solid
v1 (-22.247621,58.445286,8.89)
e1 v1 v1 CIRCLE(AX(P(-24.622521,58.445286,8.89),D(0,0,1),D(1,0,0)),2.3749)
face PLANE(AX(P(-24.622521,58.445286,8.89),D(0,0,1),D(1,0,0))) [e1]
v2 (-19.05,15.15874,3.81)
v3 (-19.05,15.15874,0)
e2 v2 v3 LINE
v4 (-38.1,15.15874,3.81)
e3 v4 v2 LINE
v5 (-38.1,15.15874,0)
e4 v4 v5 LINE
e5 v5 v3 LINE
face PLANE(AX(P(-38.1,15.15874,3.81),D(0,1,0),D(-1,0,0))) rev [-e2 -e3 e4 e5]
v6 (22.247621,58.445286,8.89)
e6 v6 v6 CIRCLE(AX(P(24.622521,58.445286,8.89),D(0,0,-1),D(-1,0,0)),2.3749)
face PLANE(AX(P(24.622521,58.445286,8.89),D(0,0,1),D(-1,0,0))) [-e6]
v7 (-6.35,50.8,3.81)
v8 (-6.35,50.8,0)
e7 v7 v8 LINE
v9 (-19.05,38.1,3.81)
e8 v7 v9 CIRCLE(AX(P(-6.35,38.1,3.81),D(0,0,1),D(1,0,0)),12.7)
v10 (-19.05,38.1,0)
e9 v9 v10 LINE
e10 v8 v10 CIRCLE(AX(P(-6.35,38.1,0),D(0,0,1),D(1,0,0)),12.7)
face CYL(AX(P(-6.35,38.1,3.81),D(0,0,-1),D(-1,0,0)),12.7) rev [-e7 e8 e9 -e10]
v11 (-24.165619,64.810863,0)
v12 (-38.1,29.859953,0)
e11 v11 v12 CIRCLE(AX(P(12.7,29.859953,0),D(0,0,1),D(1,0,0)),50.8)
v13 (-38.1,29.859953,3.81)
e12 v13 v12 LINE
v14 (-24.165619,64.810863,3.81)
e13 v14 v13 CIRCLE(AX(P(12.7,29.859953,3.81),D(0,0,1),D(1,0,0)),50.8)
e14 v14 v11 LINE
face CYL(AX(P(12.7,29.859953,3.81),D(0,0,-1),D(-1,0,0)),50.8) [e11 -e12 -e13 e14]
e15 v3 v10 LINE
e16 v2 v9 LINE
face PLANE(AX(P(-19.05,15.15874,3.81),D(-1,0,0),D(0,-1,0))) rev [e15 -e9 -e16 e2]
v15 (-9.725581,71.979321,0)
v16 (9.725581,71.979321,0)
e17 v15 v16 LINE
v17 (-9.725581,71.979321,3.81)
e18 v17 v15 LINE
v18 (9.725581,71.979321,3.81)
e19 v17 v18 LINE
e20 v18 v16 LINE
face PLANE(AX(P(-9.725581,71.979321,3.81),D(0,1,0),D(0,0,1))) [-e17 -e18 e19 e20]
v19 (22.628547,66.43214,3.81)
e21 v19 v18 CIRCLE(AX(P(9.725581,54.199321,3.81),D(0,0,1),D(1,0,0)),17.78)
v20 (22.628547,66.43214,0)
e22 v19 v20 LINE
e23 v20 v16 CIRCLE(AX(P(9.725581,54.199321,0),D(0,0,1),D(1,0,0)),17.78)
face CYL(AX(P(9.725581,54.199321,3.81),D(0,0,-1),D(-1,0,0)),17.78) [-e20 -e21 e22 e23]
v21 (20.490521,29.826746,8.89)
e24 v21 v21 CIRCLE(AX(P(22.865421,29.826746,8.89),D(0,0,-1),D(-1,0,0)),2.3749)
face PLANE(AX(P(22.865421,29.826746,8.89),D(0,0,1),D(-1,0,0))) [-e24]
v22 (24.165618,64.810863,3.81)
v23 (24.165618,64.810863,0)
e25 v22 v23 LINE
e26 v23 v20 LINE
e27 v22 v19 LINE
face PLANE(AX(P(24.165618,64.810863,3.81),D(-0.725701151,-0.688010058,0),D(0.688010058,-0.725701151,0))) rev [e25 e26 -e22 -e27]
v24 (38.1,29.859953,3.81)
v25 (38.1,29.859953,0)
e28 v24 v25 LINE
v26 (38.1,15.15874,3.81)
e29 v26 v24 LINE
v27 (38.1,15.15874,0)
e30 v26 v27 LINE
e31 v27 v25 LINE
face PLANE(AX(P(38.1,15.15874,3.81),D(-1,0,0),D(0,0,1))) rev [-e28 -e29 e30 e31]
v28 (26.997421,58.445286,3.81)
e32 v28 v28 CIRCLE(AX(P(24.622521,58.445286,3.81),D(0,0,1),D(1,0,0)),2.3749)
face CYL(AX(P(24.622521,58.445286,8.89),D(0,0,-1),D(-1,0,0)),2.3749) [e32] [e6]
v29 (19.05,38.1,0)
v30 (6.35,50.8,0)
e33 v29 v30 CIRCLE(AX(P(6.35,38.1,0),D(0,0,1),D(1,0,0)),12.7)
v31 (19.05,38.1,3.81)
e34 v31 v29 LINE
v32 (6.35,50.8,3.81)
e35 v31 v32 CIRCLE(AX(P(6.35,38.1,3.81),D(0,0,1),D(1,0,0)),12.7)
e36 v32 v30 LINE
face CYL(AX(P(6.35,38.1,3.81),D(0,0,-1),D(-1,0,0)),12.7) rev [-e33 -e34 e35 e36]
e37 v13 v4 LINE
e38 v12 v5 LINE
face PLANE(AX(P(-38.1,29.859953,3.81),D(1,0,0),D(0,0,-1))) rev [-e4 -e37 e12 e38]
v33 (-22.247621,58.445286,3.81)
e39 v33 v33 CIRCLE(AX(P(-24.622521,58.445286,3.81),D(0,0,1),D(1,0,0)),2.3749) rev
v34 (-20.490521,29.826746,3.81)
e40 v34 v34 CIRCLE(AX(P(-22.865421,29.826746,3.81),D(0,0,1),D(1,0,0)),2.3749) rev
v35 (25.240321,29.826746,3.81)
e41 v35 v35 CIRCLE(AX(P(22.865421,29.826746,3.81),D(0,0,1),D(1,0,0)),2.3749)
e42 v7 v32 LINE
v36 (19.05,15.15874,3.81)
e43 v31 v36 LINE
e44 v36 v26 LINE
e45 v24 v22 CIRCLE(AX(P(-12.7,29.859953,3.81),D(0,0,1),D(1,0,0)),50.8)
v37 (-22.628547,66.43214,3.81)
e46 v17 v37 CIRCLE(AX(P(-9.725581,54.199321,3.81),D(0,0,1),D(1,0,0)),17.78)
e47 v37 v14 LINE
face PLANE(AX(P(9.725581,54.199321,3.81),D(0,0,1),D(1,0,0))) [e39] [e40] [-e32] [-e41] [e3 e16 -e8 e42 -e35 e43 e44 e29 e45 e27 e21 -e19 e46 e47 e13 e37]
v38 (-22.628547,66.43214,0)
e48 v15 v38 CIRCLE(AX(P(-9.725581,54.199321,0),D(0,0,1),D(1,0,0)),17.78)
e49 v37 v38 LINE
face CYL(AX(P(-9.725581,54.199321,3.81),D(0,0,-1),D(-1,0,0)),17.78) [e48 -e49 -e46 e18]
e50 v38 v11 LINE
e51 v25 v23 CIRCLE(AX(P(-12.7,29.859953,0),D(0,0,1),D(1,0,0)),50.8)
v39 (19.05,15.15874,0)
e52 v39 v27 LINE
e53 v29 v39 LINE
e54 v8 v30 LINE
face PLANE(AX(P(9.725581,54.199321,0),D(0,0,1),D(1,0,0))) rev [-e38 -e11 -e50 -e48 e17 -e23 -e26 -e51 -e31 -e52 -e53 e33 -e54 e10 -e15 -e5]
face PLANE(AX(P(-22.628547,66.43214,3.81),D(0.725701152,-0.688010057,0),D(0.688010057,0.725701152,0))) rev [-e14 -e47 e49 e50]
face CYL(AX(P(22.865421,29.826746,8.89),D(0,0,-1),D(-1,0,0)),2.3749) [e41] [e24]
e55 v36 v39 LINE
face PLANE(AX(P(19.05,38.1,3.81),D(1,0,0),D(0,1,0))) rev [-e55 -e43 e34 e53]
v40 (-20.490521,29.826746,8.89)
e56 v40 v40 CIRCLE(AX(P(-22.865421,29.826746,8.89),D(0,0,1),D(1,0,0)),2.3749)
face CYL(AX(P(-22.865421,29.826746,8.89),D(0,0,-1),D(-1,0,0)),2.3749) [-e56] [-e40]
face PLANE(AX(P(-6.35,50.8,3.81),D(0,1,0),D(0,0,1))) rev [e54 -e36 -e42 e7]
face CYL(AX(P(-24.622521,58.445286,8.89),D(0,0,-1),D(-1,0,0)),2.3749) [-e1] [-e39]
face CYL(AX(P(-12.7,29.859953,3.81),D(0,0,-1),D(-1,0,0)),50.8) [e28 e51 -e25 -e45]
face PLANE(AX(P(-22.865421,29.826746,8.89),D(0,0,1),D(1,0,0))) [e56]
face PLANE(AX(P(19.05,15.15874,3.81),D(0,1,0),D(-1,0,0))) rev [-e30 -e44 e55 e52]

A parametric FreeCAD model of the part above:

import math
import FreeCAD as App
import Part
import Sketcher
from FreeCAD import Vector
Q = App.Units.Quantity

doc = App.newDocument("Part")
body = doc.addObject("PartDesign::Body", "Body")

# Sketch on XY plane
sketch1 = body.newObject("Sketcher::SketchObject", "Sketch")
sketch1.AttachmentSupport = (doc.getObject("XY_Plane"), [""])
sketch1.MapMode = "FlatFace"
sketch1.addGeometry([
    Part.LineSegment(Vector(-22.628547, 66.43214, 0), Vector(-24.165619, 64.810863, 0)),  # 0
    Part.ArcOfCircle(Part.Circle(Vector(12.7, 29.859953, 0), Vector(0, 0, 1), 50.8), math.radians(136.527207), math.radians(180)),  # 1
    Part.LineSegment(Vector(-38.1, 29.859953, 0), Vector(-38.1, 15.15874, 0)),  # 2
    Part.LineSegment(Vector(-38.1, 15.15874, 0), Vector(-19.05, 15.15874, 0)),  # 3
    Part.LineSegment(Vector(-19.05, 15.15874, 0), Vector(-19.05, 38.1, 0)),  # 4
    Part.ArcOfCircle(Part.Circle(Vector(-6.35, 38.1, 0), Vector(0, 0, 1), 12.7), math.radians(90), math.radians(180)),  # 5
    Part.LineSegment(Vector(-6.35, 50.8, 0), Vector(6.35, 50.8, 0)),  # 6
    Part.ArcOfCircle(Part.Circle(Vector(6.35, 38.1, 0), Vector(0, 0, 1), 12.7), math.radians(0), math.radians(90)),  # 7
    Part.LineSegment(Vector(19.05, 38.1, 0), Vector(19.05, 15.15874, 0)),  # 8
    Part.LineSegment(Vector(19.05, 15.15874, 0), Vector(38.1, 15.15874, 0)),  # 9
    Part.LineSegment(Vector(38.1, 15.15874, 0), Vector(38.1, 29.859953, 0)),  # 10
    Part.ArcOfCircle(Part.Circle(Vector(-12.7, 29.859953, 0), Vector(0, 0, 1), 50.8), math.radians(0), math.radians(43.472793)),  # 11
    Part.LineSegment(Vector(24.165618, 64.810863, 0), Vector(22.628547, 66.43214, 0)),  # 12
    Part.ArcOfCircle(Part.Circle(Vector(9.725581, 54.199321, 0), Vector(0, 0, 1), 17.78), math.radians(43.472793), math.radians(90)),  # 13
    Part.LineSegment(Vector(9.725581, 71.979321, 0), Vector(-9.725581, 71.979321, 0)),  # 14
    Part.ArcOfCircle(Part.Circle(Vector(-9.725581, 54.199321, 0), Vector(0, 0, 1), 17.78), math.radians(90), math.radians(136.527207)),  # 15
], False)
sketch1.addConstraint([
    Sketcher.Constraint("Tangent", 0, 2, 1, 1),
    Sketcher.Constraint("Tangent", 1, 2, 2, 1),
    Sketcher.Constraint("Coincident", 2, 2, 3, 1),
    Sketcher.Constraint("Coincident", 3, 2, 4, 1),
    Sketcher.Constraint("Tangent", 4, 2, 5, 2),
    Sketcher.Constraint("Tangent", 5, 1, 6, 1),
    Sketcher.Constraint("Tangent", 6, 2, 7, 2),
    Sketcher.Constraint("Tangent", 7, 1, 8, 1),
    Sketcher.Constraint("Coincident", 8, 2, 9, 1),
    Sketcher.Constraint("Coincident", 9, 2, 10, 1),
    Sketcher.Constraint("Tangent", 10, 2, 11, 1),
    Sketcher.Constraint("Tangent", 11, 2, 12, 1),
    Sketcher.Constraint("Tangent", 12, 2, 13, 1),
    Sketcher.Constraint("Tangent", 13, 2, 14, 1),
    Sketcher.Constraint("Tangent", 14, 2, 15, 1),
    Sketcher.Constraint("Tangent", 15, 2, 0, 1),
    Sketcher.Constraint("Vertical", 2),
    Sketcher.Constraint("Horizontal", 3),
    Sketcher.Constraint("Vertical", 4),
    Sketcher.Constraint("Horizontal", 6),
    Sketcher.Constraint("Vertical", 8),
    Sketcher.Constraint("Horizontal", 9),
    Sketcher.Constraint("Vertical", 10),
    Sketcher.Constraint("Horizontal", 14),
    Sketcher.Constraint("Equal", 5, 7),
    Sketcher.Constraint("Equal", 1, 11),
    Sketcher.Constraint("Equal", 13, 15),
    Sketcher.Constraint("Symmetric", 1, 3, 11, 3, -2),
    Sketcher.Constraint("Symmetric", 3, 2, 8, 2, -2),
    Sketcher.Constraint("Horizontal", 0, 2, 11, 2),
    Sketcher.Constraint("Radius", 1, Q("2 in")),
    Sketcher.Constraint("Radius", 5, Q("0.5 in")),
    Sketcher.Constraint("Radius", 13, Q("0.7 in")),
    Sketcher.Constraint("DistanceX", 6, 1, 6, 2, Q("0.5 in")),
    Sketcher.Constraint("DistanceY", -1, 1, 5, 1, Q("2 in")),
    Sketcher.Constraint("DistanceX", 11, 3, 1, 3, Q("1 in")),
    Sketcher.Constraint("DistanceX", 14, 2, 14, 1, 19.451162),
    Sketcher.Constraint("DistanceY", 4, 1, 4, 2, 22.94126),
    Sketcher.Constraint("DistanceX", 0, 2, 13, 3, 33.891199),
    Sketcher.Constraint("DistanceY", 2, 2, 2, 1, 14.701212),
])
pad1 = body.newObject("PartDesign::Pad", "Pad")
pad1.Profile = sketch1
pad1.Length = Q("0.15 in")

# Sketch on XY plane
sketch2 = body.newObject("Sketcher::SketchObject", "Sketch001")
sketch2.AttachmentSupport = (doc.getObject("XY_Plane"), [""])
sketch2.MapMode = "FlatFace"
sketch2.addGeometry([
    Part.Circle(Vector(-24.622521, 58.445286, 0), Vector(0, 0, 1), 2.3749),
    Part.Circle(Vector(-22.865421, 29.826746, 0), Vector(0, 0, 1), 2.3749),
], False)
sketch2.addConstraint([
    Sketcher.Constraint("Equal", 0, 1),
    Sketcher.Constraint("Diameter", 0, Q("0.187 in")),
    Sketcher.Constraint("DistanceX", 0, 3, 1, 3, 1.7571),
    Sketcher.Constraint("DistanceX", 0, 3, -1, 1, 24.622521),
    Sketcher.Constraint("DistanceY", 1, 3, 0, 3, 28.61854),
    Sketcher.Constraint("DistanceY", -1, 1, 0, 3, 58.445286),
])
pad2 = body.newObject("PartDesign::Pad", "Pad001")
pad2.Profile = sketch2
pad2.Length = Q("0.35 in")
doc.recompute()

mirrored = body.newObject("PartDesign::Mirrored", "Mirrored")
mirrored.Originals = [pad2]
mirrored.MirrorPlane = (doc.getObject("YZ_Plane"), [""])
body.Tip = mirrored

doc.recompute()
